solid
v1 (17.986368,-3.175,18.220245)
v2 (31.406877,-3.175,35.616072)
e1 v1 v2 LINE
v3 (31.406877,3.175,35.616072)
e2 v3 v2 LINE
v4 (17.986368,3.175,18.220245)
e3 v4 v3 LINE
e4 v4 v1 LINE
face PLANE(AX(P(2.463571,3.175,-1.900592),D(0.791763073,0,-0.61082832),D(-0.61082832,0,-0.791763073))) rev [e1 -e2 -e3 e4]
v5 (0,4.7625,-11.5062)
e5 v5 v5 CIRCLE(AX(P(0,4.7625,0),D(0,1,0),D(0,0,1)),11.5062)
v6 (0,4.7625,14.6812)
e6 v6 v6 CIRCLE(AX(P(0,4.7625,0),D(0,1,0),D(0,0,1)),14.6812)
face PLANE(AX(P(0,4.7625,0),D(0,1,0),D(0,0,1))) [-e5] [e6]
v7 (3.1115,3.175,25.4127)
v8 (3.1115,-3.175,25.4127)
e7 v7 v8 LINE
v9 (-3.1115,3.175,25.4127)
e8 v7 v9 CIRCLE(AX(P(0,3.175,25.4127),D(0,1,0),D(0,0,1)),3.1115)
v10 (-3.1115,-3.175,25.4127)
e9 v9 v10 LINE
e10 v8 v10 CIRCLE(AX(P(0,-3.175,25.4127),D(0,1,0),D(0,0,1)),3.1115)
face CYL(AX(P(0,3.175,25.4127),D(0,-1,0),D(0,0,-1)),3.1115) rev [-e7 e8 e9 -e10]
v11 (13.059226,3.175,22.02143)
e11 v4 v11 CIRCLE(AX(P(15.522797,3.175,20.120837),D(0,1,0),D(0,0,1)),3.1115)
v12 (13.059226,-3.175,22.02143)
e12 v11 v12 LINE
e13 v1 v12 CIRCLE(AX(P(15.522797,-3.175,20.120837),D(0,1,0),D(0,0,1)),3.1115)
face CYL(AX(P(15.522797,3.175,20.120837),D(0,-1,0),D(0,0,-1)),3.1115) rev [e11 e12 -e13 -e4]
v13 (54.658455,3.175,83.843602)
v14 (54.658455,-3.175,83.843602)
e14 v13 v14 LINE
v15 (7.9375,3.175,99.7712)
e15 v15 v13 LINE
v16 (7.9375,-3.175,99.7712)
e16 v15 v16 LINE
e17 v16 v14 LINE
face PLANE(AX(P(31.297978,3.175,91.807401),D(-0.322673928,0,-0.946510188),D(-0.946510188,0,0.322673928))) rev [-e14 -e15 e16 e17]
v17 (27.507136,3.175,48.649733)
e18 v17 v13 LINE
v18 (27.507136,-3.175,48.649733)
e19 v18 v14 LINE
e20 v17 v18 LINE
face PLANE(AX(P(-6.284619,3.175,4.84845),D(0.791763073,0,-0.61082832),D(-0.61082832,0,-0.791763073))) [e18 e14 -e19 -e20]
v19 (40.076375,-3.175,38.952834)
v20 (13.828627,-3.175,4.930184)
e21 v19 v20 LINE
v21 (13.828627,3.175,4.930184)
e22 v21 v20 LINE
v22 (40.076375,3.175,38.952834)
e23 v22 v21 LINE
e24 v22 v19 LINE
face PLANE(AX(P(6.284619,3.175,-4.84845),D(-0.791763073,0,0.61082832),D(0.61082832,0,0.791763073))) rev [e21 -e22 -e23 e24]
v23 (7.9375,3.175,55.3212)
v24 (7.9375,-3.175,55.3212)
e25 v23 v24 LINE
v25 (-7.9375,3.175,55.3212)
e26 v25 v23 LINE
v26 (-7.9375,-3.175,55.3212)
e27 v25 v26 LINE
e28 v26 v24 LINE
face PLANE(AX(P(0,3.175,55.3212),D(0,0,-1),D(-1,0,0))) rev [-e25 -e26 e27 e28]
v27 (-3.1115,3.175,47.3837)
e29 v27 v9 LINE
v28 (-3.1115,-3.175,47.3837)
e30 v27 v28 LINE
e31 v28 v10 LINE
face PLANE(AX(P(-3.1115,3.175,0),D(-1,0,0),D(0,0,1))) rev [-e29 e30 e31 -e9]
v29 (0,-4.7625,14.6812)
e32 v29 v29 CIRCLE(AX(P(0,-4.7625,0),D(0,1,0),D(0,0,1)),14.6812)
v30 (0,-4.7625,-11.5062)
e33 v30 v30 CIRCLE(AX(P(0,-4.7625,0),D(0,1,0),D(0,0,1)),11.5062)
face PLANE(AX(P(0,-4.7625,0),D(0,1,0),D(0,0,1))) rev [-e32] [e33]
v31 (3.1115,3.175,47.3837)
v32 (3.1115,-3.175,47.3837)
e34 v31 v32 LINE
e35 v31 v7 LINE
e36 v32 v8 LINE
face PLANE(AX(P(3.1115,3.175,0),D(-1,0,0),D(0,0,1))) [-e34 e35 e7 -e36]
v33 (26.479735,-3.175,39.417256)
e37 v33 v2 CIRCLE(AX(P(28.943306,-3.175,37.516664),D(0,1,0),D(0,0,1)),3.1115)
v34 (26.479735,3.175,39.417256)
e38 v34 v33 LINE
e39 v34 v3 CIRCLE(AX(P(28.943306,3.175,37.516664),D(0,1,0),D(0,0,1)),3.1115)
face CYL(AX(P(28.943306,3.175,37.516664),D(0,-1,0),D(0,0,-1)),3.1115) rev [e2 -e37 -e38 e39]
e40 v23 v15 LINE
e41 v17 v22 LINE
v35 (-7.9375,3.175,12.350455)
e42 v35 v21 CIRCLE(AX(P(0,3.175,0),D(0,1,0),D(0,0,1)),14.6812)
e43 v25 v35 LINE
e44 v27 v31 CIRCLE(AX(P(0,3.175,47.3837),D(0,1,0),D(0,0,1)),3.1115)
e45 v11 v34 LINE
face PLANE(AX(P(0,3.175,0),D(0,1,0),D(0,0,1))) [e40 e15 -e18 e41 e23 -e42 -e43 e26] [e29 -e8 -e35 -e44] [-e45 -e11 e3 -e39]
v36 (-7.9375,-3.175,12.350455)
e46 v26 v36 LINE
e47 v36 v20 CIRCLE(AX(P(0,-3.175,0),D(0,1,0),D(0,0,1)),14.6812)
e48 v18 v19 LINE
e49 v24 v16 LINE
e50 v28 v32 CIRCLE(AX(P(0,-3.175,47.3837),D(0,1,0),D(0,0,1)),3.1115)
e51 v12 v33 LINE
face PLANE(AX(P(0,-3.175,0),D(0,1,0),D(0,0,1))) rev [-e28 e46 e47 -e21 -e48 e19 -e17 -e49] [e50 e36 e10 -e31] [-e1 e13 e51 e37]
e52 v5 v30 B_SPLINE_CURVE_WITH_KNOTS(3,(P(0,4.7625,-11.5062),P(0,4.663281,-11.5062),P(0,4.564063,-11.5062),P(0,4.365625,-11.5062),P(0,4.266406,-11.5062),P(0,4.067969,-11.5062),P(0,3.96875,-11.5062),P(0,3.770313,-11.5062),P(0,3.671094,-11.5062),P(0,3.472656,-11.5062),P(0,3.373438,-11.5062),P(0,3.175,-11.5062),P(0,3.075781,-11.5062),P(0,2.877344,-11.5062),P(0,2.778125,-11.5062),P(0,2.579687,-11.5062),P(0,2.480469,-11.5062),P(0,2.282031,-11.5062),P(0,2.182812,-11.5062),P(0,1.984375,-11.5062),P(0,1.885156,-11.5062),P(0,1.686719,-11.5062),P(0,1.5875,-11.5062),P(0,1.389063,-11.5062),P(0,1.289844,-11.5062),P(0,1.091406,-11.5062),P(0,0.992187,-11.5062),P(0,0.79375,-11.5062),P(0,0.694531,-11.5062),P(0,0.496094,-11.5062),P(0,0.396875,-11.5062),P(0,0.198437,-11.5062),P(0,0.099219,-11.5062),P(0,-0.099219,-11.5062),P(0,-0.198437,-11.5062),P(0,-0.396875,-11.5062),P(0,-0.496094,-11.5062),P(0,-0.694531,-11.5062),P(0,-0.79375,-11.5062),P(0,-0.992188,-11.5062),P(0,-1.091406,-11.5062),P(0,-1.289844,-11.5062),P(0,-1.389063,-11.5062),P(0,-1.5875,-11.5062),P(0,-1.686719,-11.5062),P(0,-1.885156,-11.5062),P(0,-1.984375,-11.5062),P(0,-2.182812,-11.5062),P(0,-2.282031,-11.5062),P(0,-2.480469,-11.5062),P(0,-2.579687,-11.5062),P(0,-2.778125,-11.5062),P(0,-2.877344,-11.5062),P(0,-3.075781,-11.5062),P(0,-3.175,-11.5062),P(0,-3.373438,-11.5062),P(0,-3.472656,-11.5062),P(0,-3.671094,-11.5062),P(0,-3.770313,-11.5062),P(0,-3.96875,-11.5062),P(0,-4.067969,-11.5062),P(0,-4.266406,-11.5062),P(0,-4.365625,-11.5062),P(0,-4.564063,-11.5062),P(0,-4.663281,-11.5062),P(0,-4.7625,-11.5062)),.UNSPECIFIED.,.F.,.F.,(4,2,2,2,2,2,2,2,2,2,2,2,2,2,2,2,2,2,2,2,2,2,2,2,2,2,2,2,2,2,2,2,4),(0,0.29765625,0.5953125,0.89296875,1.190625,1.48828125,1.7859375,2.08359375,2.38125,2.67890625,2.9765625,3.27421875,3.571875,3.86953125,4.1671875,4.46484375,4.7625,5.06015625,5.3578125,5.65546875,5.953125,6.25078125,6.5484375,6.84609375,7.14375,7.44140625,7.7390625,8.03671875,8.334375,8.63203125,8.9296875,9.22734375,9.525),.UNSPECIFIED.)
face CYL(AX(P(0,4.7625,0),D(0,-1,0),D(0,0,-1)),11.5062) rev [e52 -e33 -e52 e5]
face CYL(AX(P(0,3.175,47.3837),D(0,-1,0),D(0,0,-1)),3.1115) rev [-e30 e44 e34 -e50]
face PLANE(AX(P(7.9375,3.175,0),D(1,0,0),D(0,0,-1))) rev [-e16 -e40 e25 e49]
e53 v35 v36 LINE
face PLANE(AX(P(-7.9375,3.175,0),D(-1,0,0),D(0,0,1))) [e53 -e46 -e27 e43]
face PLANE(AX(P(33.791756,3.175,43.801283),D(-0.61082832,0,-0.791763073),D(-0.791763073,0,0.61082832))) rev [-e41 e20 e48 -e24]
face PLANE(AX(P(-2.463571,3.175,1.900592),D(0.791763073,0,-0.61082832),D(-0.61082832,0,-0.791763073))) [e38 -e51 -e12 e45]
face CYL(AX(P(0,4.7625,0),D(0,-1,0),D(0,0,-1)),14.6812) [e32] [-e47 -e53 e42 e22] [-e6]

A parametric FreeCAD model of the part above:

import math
import FreeCAD as App
import Part
import Sketcher
Q = App.Units.Quantity

doc = App.newDocument("Part")
body = doc.addObject("PartDesign::Body", "Body")

# Sketch on XZ plane
sketch1 = body.newObject("Sketcher::SketchObject", "Sketch")
sketch1.AttachmentSupport = (doc.getObject("XZ_Plane"), [""])
sketch1.MapMode = "FlatFace"
sketch1.addGeometry([
    Part.Circle(App.Vector(0, 0, 0), App.Vector(0, 0, 1), 15),
    Part.Circle(App.Vector(0, 0, 0), App.Vector(0, 0, 1), 12),
], False)
sketch1.addConstraint([
    Sketcher.Constraint("Coincident", 0, 3, -1, 1),
    Sketcher.Constraint("Coincident", 1, 3, -1, 1),
    Sketcher.Constraint("Diameter", 0, Q("1.156 in")),
    Sketcher.Constraint("Diameter", 1, Q("0.906 in")),
])
pad1 = body.newObject("PartDesign::Pad", "Pad")
pad1.Profile = sketch1
pad1.Length = Q("0.375 in")
pad1.Midplane = True

# Sketch on XZ plane
sketch2 = body.newObject("Sketcher::SketchObject", "Sketch001")
sketch2.AttachmentSupport = (doc.getObject("XZ_Plane"), [""])
sketch2.MapMode = "FlatFace"
sketch2.addGeometry([
    Part.LineSegment(App.Vector(-7.9, 12.4, 0), App.Vector(-7.9, 55.3, 0)),  # 0
    Part.LineSegment(App.Vector(-7.9, 55.3, 0), App.Vector(7.9, 55.3, 0)),  # 1
    Part.LineSegment(App.Vector(7.9, 55.3, 0), App.Vector(7.9, 99.8, 0)),  # 2
    Part.LineSegment(App.Vector(7.9, 99.8, 0), App.Vector(54.7, 83.8, 0)),  # 3
    Part.LineSegment(App.Vector(54.7, 83.8, 0), App.Vector(27.5, 48.6, 0)),  # 4
    Part.LineSegment(App.Vector(27.5, 48.6, 0), App.Vector(40.1, 39, 0)),  # 5
    Part.LineSegment(App.Vector(40.1, 39, 0), App.Vector(13.8, 4.9, 0)),  # 6
    Part.ArcOfCircle(Part.Circle(App.Vector(0, 0, 0), App.Vector(0, 0, 1), 14.7), math.radians(20), math.radians(123)),  # 7
    Part.LineSegment(App.Vector(3.1, 25.4, 0), App.Vector(3.1, 47.4, 0)),  # 8
    Part.ArcOfCircle(Part.Circle(App.Vector(0, 47.4, 0), App.Vector(0, 0, 1), 3.1), math.radians(0), math.radians(180)),  # 9
    Part.LineSegment(App.Vector(-3.1, 47.4, 0), App.Vector(-3.1, 25.4, 0)),  # 10
    Part.ArcOfCircle(Part.Circle(App.Vector(0, 25.4, 0), App.Vector(0, 0, 1), 3.1), math.radians(180), math.radians(360)),  # 11
    Part.LineSegment(App.Vector(18, 18.2, 0), App.Vector(31.4, 35.6, 0)),  # 12
    Part.ArcOfCircle(Part.Circle(App.Vector(28.9, 37.5, 0), App.Vector(0, 0, 1), 3.1), math.radians(-38), math.radians(52)),  # 13
    Part.ArcOfCircle(Part.Circle(App.Vector(28.9, 37.5, 0), App.Vector(0, 0, 1), 3.1), math.radians(52), math.radians(142)),  # 14
    Part.LineSegment(App.Vector(26.5, 39.4, 0), App.Vector(13.1, 22, 0)),  # 15
    Part.ArcOfCircle(Part.Circle(App.Vector(15.5, 20.1, 0), App.Vector(0, 0, 1), 3.1), math.radians(142), math.radians(322)),  # 16
], False)
sketch2.addConstraint([
    Sketcher.Constraint("Coincident", 0, 2, 1, 1),
    Sketcher.Constraint("Coincident", 1, 2, 2, 1),
    Sketcher.Constraint("Coincident", 2, 2, 3, 1),
    Sketcher.Constraint("Coincident", 3, 2, 4, 1),
    Sketcher.Constraint("Coincident", 4, 2, 5, 1),
    Sketcher.Constraint("Coincident", 5, 2, 6, 1),
    Sketcher.Constraint("Coincident", 6, 2, 7, 1),
    Sketcher.Constraint("Coincident", 7, 2, 0, 1),
    Sketcher.Constraint("Tangent", 8, 2, 9, 1),
    Sketcher.Constraint("Tangent", 9, 2, 10, 1),
    Sketcher.Constraint("Tangent", 10, 2, 11, 1),
    Sketcher.Constraint("Tangent", 11, 2, 8, 1),
    Sketcher.Constraint("Tangent", 12, 2, 13, 1),
    Sketcher.Constraint("Tangent", 13, 2, 14, 1),
    Sketcher.Constraint("Tangent", 14, 2, 15, 1),
    Sketcher.Constraint("Tangent", 15, 2, 16, 1),
    Sketcher.Constraint("Tangent", 16, 2, 12, 1),
    Sketcher.Constraint("Vertical", 0),
    Sketcher.Constraint("Horizontal", 1),
    Sketcher.Constraint("Vertical", 2),
    Sketcher.Constraint("Vertical", 8),
    Sketcher.Constraint("Vertical", 10),
    Sketcher.Constraint("Coincident", 7, 3, -1, 1),
    Sketcher.Constraint("Equal", 11, 13),
    Sketcher.Constraint("Equal", 13, 14),
    Sketcher.Constraint("Equal", 14, 16),
    Sketcher.Constraint("PointOnObject", 9, 3, -2),
    Sketcher.Constraint("Perpendicular", 4, 5),
    Sketcher.Constraint("Perpendicular", 5, 6),
    Sketcher.Constraint("Parallel", 6, 12),
    Sketcher.Constraint("Radius", 7, Q("0.578 in")),
    Sketcher.Constraint("DistanceY", 2, 1, 2, 2, Q("1.75 in")),
    Sketcher.Constraint("Radius", 9, Q("0.1225 in")),
    Sketcher.Constraint("Distance", 4, Q("1.75 in")),
    Sketcher.Constraint("DistanceX", 1, 1, 1, 2, Q("0.625 in")),
    Sketcher.Constraint("DistanceY", 8, 1, 8, 2, Q("0.865 in")),
    Sketcher.Constraint("DistanceX", 8, 2, 1, 2, Q("0.19 in")),
    Sketcher.Constraint("Distance", 5, Q("0.625 in")),
    Sketcher.Constraint("Distance", 12, Q("0.865 in")),
    Sketcher.Constraint("DistanceY", -1, 1, 0, 2, Q("2.178 in")),
    Sketcher.Constraint("DistanceY", 9, 3, 0, 2, Q("0.3125 in")),
    Sketcher.Constraint("DistanceY", -1, 1, 3, 2, Q("83.843602 mm")),
    Sketcher.Constraint("DistanceX", -1, 1, 13, 2, Q("30.843898 mm")),
    Sketcher.Constraint("DistanceY", 5, 2, 4, 2, Q("9.6969 mm")),
    Sketcher.Constraint("DistanceX", 12, 2, 5, 2, Q("8.669498 mm")),
    Sketcher.Constraint("DistanceY", 13, 2, 4, 2, Q("8.669498 mm")),
    Sketcher.Constraint("DistanceX", 15, 2, 6, 2, Q("0.769401 mm")),
])
pad2 = body.newObject("PartDesign::Pad", "Pad001")
pad2.Profile = sketch2
pad2.Length = Q("0.25 in")
pad2.Midplane = True

doc.recompute()
